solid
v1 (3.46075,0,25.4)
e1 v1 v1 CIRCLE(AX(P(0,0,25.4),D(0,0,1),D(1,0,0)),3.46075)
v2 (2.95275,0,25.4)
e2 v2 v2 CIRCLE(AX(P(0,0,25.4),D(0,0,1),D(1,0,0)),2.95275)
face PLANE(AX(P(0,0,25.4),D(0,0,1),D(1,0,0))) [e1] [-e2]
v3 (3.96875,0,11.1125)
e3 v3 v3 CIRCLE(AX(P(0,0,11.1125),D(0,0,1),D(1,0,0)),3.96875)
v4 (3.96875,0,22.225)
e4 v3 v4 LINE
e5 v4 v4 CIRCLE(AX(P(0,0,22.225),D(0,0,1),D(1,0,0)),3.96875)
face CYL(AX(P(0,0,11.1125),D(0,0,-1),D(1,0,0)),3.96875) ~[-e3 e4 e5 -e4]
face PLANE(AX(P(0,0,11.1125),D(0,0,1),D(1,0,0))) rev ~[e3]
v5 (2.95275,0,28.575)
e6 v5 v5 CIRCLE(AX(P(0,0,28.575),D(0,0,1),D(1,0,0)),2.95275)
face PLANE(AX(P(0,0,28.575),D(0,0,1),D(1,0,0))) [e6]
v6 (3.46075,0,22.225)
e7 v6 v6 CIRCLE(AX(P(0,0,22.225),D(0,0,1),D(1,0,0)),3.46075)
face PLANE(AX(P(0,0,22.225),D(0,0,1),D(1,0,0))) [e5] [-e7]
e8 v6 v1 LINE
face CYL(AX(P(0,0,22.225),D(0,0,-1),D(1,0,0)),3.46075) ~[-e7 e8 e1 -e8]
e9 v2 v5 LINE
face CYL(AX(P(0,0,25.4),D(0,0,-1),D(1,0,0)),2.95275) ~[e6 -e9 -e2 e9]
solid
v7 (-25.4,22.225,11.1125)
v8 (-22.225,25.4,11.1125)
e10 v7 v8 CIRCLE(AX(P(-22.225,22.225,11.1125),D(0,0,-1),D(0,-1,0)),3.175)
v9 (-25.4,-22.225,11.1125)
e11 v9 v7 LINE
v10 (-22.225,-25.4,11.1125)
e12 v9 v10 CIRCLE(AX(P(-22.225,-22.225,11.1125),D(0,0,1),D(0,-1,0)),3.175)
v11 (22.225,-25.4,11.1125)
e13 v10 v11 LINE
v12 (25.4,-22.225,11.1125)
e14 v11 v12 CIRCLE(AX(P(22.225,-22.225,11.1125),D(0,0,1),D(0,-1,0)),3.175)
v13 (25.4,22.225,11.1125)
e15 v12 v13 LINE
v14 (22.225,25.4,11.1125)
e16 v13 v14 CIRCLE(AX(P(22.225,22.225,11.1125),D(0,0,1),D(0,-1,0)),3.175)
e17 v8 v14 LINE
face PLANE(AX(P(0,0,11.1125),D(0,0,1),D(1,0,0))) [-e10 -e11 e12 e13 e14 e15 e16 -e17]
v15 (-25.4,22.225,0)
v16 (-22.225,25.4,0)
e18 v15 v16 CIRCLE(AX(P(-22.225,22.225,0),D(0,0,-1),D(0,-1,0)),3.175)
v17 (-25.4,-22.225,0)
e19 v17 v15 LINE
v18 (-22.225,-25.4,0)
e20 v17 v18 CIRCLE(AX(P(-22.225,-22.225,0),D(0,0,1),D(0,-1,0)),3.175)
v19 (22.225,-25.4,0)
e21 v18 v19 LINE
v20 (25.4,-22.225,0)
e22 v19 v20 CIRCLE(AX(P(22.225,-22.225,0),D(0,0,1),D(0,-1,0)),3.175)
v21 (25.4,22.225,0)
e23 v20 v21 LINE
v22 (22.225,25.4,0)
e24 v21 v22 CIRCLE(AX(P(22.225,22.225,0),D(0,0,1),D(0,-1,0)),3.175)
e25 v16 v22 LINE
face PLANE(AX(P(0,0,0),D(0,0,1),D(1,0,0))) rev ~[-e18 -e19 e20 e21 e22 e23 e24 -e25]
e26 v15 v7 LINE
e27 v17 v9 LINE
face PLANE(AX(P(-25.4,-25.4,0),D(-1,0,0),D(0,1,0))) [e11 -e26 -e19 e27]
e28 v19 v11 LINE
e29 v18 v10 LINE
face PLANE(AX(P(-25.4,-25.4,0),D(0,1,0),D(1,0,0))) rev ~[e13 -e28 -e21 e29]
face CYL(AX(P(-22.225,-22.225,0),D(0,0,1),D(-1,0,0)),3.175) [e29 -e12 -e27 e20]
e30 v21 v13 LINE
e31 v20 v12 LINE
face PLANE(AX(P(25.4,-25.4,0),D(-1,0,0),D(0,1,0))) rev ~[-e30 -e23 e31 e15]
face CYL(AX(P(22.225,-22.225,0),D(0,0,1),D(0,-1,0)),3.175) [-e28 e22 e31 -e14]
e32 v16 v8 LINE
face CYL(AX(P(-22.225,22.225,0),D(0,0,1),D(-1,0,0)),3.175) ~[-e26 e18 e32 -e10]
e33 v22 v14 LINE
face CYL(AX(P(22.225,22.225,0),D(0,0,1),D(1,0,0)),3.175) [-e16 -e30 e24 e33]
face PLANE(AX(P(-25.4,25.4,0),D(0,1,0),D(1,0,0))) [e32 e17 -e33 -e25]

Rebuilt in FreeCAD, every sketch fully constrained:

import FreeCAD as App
import Part
import Sketcher
Q = App.Units.Quantity


def edges_at(feature, points):
    """Names of the edges that pass closest to the given points."""
    edges = feature.Shape.Edges
    near = lambda p: min(range(len(edges)), key=lambda i: edges[i].distToShape(Part.Vertex(*p))[0])
    return sorted({f"Edge{near(p) + 1}" for p in points})

doc = App.newDocument("Part")
body = doc.addObject("PartDesign::Body", "Body")

# Sketch on XY plane
sketch1 = doc.addObject("Sketcher::SketchObject", "Sketch")
body.addObject(sketch1)
sketch1.AttachmentSupport = (doc.XY_Plane, [""])
sketch1.MapMode = "FlatFace"
sketch1.addGeometry([
    Part.LineSegment(App.Vector(-25, 25, 0), App.Vector(-25, -25, 0)),
    Part.LineSegment(App.Vector(-25, -25, 0), App.Vector(25, -25, 0)),
    Part.LineSegment(App.Vector(25, -25, 0), App.Vector(25, 25, 0)),
    Part.LineSegment(App.Vector(25, 25, 0), App.Vector(-25, 25, 0)),
], False)
sketch1.addConstraint([
    Sketcher.Constraint("Coincident", 0, 2, 1, 1),
    Sketcher.Constraint("Coincident", 1, 2, 2, 1),
    Sketcher.Constraint("Coincident", 2, 2, 3, 1),
    Sketcher.Constraint("Coincident", 3, 2, 0, 1),
    Sketcher.Constraint("Vertical", 0),
    Sketcher.Constraint("Horizontal", 1),
    Sketcher.Constraint("Vertical", 2),
    Sketcher.Constraint("Horizontal", 3),
    Sketcher.Constraint("Symmetric", 0, 2, 2, 2, -1, 1),
    Sketcher.Constraint("Equal", 3, 0),
    Sketcher.Constraint("DistanceX", 1, 1, 1, 2, Q("2 in")),
])
pad1 = doc.addObject("PartDesign::Pad", "Pad")
body.addObject(pad1)
pad1.Profile = sketch1
pad1.Length = Q("0.4375 in")
doc.recompute()

fillet = doc.addObject("PartDesign::Fillet", "Fillet")
body.addObject(fillet)
fillet.Base = (pad1, edges_at(pad1, [
    (25.4, -25.4, 5.556),
    (25.4, 25.4, 5.556),
    (-25.4, -25.4, 5.556),
    (-25.4, 25.4, 5.556),
]))
fillet.Radius = Q("0.125 in")
body2 = doc.addObject("PartDesign::Body", "Body001")

# Sketch on XY plane
sketch2 = doc.addObject("Sketcher::SketchObject", "Sketch001")
body2.addObject(sketch2)
sketch2.AttachmentSupport = (doc.getObject("XY_Plane001"), [""])
sketch2.MapMode = "FlatFace"
sketch2.AttachmentOffset = App.Placement(App.Vector(0, 0, 0.4375 * 25.4), App.Rotation())
sketch2.addGeometry(Part.Circle(App.Vector(0, 0, 0), App.Vector(0, 0, 1), 4), False)
sketch2.addConstraint([
    Sketcher.Constraint("Coincident", 0, 3, -1, 1),
    Sketcher.Constraint("Diameter", 0, Q("0.3125 in")),
])
pad2 = doc.addObject("PartDesign::Pad", "Pad001")
body2.addObject(pad2)
pad2.Profile = sketch2
pad2.Length = Q("0.4375 in")

# Sketch on XY plane
sketch3 = doc.addObject("Sketcher::SketchObject", "Sketch002")
body2.addObject(sketch3)
sketch3.AttachmentSupport = (doc.getObject("XY_Plane001"), [""])
sketch3.MapMode = "FlatFace"
sketch3.AttachmentOffset = App.Placement(App.Vector(0, 0, 0.875 * 25.4), App.Rotation())
sketch3.addGeometry(Part.Circle(App.Vector(0, 0, 0), App.Vector(0, 0, 1), 3.5), False)
sketch3.addConstraint([
    Sketcher.Constraint("Coincident", 0, 3, -1, 1),
    Sketcher.Constraint("Diameter", 0, Q("0.2725 in")),
])
pad3 = doc.addObject("PartDesign::Pad", "Pad002")
body2.addObject(pad3)
pad3.Profile = sketch3
pad3.Length = Q("0.125 in")

# Sketch on XY plane
sketch4 = doc.addObject("Sketcher::SketchObject", "Sketch003")
body2.addObject(sketch4)
sketch4.AttachmentSupport = (doc.getObject("XY_Plane001"), [""])
sketch4.MapMode = "FlatFace"
sketch4.AttachmentOffset = App.Placement(App.Vector(0, 0, 1 * 25.4), App.Rotation())
sketch4.addGeometry(Part.Circle(App.Vector(0, 0, 0), App.Vector(0, 0, 1), 3), False)
sketch4.addConstraint([
    Sketcher.Constraint("Coincident", 0, 3, -1, 1),
    Sketcher.Constraint("Diameter", 0, Q("0.2325 in")),
])
pad4 = doc.addObject("PartDesign::Pad", "Pad003")
body2.addObject(pad4)
pad4.Profile = sketch4
pad4.Length = Q("0.125 in")

doc.recompute()
